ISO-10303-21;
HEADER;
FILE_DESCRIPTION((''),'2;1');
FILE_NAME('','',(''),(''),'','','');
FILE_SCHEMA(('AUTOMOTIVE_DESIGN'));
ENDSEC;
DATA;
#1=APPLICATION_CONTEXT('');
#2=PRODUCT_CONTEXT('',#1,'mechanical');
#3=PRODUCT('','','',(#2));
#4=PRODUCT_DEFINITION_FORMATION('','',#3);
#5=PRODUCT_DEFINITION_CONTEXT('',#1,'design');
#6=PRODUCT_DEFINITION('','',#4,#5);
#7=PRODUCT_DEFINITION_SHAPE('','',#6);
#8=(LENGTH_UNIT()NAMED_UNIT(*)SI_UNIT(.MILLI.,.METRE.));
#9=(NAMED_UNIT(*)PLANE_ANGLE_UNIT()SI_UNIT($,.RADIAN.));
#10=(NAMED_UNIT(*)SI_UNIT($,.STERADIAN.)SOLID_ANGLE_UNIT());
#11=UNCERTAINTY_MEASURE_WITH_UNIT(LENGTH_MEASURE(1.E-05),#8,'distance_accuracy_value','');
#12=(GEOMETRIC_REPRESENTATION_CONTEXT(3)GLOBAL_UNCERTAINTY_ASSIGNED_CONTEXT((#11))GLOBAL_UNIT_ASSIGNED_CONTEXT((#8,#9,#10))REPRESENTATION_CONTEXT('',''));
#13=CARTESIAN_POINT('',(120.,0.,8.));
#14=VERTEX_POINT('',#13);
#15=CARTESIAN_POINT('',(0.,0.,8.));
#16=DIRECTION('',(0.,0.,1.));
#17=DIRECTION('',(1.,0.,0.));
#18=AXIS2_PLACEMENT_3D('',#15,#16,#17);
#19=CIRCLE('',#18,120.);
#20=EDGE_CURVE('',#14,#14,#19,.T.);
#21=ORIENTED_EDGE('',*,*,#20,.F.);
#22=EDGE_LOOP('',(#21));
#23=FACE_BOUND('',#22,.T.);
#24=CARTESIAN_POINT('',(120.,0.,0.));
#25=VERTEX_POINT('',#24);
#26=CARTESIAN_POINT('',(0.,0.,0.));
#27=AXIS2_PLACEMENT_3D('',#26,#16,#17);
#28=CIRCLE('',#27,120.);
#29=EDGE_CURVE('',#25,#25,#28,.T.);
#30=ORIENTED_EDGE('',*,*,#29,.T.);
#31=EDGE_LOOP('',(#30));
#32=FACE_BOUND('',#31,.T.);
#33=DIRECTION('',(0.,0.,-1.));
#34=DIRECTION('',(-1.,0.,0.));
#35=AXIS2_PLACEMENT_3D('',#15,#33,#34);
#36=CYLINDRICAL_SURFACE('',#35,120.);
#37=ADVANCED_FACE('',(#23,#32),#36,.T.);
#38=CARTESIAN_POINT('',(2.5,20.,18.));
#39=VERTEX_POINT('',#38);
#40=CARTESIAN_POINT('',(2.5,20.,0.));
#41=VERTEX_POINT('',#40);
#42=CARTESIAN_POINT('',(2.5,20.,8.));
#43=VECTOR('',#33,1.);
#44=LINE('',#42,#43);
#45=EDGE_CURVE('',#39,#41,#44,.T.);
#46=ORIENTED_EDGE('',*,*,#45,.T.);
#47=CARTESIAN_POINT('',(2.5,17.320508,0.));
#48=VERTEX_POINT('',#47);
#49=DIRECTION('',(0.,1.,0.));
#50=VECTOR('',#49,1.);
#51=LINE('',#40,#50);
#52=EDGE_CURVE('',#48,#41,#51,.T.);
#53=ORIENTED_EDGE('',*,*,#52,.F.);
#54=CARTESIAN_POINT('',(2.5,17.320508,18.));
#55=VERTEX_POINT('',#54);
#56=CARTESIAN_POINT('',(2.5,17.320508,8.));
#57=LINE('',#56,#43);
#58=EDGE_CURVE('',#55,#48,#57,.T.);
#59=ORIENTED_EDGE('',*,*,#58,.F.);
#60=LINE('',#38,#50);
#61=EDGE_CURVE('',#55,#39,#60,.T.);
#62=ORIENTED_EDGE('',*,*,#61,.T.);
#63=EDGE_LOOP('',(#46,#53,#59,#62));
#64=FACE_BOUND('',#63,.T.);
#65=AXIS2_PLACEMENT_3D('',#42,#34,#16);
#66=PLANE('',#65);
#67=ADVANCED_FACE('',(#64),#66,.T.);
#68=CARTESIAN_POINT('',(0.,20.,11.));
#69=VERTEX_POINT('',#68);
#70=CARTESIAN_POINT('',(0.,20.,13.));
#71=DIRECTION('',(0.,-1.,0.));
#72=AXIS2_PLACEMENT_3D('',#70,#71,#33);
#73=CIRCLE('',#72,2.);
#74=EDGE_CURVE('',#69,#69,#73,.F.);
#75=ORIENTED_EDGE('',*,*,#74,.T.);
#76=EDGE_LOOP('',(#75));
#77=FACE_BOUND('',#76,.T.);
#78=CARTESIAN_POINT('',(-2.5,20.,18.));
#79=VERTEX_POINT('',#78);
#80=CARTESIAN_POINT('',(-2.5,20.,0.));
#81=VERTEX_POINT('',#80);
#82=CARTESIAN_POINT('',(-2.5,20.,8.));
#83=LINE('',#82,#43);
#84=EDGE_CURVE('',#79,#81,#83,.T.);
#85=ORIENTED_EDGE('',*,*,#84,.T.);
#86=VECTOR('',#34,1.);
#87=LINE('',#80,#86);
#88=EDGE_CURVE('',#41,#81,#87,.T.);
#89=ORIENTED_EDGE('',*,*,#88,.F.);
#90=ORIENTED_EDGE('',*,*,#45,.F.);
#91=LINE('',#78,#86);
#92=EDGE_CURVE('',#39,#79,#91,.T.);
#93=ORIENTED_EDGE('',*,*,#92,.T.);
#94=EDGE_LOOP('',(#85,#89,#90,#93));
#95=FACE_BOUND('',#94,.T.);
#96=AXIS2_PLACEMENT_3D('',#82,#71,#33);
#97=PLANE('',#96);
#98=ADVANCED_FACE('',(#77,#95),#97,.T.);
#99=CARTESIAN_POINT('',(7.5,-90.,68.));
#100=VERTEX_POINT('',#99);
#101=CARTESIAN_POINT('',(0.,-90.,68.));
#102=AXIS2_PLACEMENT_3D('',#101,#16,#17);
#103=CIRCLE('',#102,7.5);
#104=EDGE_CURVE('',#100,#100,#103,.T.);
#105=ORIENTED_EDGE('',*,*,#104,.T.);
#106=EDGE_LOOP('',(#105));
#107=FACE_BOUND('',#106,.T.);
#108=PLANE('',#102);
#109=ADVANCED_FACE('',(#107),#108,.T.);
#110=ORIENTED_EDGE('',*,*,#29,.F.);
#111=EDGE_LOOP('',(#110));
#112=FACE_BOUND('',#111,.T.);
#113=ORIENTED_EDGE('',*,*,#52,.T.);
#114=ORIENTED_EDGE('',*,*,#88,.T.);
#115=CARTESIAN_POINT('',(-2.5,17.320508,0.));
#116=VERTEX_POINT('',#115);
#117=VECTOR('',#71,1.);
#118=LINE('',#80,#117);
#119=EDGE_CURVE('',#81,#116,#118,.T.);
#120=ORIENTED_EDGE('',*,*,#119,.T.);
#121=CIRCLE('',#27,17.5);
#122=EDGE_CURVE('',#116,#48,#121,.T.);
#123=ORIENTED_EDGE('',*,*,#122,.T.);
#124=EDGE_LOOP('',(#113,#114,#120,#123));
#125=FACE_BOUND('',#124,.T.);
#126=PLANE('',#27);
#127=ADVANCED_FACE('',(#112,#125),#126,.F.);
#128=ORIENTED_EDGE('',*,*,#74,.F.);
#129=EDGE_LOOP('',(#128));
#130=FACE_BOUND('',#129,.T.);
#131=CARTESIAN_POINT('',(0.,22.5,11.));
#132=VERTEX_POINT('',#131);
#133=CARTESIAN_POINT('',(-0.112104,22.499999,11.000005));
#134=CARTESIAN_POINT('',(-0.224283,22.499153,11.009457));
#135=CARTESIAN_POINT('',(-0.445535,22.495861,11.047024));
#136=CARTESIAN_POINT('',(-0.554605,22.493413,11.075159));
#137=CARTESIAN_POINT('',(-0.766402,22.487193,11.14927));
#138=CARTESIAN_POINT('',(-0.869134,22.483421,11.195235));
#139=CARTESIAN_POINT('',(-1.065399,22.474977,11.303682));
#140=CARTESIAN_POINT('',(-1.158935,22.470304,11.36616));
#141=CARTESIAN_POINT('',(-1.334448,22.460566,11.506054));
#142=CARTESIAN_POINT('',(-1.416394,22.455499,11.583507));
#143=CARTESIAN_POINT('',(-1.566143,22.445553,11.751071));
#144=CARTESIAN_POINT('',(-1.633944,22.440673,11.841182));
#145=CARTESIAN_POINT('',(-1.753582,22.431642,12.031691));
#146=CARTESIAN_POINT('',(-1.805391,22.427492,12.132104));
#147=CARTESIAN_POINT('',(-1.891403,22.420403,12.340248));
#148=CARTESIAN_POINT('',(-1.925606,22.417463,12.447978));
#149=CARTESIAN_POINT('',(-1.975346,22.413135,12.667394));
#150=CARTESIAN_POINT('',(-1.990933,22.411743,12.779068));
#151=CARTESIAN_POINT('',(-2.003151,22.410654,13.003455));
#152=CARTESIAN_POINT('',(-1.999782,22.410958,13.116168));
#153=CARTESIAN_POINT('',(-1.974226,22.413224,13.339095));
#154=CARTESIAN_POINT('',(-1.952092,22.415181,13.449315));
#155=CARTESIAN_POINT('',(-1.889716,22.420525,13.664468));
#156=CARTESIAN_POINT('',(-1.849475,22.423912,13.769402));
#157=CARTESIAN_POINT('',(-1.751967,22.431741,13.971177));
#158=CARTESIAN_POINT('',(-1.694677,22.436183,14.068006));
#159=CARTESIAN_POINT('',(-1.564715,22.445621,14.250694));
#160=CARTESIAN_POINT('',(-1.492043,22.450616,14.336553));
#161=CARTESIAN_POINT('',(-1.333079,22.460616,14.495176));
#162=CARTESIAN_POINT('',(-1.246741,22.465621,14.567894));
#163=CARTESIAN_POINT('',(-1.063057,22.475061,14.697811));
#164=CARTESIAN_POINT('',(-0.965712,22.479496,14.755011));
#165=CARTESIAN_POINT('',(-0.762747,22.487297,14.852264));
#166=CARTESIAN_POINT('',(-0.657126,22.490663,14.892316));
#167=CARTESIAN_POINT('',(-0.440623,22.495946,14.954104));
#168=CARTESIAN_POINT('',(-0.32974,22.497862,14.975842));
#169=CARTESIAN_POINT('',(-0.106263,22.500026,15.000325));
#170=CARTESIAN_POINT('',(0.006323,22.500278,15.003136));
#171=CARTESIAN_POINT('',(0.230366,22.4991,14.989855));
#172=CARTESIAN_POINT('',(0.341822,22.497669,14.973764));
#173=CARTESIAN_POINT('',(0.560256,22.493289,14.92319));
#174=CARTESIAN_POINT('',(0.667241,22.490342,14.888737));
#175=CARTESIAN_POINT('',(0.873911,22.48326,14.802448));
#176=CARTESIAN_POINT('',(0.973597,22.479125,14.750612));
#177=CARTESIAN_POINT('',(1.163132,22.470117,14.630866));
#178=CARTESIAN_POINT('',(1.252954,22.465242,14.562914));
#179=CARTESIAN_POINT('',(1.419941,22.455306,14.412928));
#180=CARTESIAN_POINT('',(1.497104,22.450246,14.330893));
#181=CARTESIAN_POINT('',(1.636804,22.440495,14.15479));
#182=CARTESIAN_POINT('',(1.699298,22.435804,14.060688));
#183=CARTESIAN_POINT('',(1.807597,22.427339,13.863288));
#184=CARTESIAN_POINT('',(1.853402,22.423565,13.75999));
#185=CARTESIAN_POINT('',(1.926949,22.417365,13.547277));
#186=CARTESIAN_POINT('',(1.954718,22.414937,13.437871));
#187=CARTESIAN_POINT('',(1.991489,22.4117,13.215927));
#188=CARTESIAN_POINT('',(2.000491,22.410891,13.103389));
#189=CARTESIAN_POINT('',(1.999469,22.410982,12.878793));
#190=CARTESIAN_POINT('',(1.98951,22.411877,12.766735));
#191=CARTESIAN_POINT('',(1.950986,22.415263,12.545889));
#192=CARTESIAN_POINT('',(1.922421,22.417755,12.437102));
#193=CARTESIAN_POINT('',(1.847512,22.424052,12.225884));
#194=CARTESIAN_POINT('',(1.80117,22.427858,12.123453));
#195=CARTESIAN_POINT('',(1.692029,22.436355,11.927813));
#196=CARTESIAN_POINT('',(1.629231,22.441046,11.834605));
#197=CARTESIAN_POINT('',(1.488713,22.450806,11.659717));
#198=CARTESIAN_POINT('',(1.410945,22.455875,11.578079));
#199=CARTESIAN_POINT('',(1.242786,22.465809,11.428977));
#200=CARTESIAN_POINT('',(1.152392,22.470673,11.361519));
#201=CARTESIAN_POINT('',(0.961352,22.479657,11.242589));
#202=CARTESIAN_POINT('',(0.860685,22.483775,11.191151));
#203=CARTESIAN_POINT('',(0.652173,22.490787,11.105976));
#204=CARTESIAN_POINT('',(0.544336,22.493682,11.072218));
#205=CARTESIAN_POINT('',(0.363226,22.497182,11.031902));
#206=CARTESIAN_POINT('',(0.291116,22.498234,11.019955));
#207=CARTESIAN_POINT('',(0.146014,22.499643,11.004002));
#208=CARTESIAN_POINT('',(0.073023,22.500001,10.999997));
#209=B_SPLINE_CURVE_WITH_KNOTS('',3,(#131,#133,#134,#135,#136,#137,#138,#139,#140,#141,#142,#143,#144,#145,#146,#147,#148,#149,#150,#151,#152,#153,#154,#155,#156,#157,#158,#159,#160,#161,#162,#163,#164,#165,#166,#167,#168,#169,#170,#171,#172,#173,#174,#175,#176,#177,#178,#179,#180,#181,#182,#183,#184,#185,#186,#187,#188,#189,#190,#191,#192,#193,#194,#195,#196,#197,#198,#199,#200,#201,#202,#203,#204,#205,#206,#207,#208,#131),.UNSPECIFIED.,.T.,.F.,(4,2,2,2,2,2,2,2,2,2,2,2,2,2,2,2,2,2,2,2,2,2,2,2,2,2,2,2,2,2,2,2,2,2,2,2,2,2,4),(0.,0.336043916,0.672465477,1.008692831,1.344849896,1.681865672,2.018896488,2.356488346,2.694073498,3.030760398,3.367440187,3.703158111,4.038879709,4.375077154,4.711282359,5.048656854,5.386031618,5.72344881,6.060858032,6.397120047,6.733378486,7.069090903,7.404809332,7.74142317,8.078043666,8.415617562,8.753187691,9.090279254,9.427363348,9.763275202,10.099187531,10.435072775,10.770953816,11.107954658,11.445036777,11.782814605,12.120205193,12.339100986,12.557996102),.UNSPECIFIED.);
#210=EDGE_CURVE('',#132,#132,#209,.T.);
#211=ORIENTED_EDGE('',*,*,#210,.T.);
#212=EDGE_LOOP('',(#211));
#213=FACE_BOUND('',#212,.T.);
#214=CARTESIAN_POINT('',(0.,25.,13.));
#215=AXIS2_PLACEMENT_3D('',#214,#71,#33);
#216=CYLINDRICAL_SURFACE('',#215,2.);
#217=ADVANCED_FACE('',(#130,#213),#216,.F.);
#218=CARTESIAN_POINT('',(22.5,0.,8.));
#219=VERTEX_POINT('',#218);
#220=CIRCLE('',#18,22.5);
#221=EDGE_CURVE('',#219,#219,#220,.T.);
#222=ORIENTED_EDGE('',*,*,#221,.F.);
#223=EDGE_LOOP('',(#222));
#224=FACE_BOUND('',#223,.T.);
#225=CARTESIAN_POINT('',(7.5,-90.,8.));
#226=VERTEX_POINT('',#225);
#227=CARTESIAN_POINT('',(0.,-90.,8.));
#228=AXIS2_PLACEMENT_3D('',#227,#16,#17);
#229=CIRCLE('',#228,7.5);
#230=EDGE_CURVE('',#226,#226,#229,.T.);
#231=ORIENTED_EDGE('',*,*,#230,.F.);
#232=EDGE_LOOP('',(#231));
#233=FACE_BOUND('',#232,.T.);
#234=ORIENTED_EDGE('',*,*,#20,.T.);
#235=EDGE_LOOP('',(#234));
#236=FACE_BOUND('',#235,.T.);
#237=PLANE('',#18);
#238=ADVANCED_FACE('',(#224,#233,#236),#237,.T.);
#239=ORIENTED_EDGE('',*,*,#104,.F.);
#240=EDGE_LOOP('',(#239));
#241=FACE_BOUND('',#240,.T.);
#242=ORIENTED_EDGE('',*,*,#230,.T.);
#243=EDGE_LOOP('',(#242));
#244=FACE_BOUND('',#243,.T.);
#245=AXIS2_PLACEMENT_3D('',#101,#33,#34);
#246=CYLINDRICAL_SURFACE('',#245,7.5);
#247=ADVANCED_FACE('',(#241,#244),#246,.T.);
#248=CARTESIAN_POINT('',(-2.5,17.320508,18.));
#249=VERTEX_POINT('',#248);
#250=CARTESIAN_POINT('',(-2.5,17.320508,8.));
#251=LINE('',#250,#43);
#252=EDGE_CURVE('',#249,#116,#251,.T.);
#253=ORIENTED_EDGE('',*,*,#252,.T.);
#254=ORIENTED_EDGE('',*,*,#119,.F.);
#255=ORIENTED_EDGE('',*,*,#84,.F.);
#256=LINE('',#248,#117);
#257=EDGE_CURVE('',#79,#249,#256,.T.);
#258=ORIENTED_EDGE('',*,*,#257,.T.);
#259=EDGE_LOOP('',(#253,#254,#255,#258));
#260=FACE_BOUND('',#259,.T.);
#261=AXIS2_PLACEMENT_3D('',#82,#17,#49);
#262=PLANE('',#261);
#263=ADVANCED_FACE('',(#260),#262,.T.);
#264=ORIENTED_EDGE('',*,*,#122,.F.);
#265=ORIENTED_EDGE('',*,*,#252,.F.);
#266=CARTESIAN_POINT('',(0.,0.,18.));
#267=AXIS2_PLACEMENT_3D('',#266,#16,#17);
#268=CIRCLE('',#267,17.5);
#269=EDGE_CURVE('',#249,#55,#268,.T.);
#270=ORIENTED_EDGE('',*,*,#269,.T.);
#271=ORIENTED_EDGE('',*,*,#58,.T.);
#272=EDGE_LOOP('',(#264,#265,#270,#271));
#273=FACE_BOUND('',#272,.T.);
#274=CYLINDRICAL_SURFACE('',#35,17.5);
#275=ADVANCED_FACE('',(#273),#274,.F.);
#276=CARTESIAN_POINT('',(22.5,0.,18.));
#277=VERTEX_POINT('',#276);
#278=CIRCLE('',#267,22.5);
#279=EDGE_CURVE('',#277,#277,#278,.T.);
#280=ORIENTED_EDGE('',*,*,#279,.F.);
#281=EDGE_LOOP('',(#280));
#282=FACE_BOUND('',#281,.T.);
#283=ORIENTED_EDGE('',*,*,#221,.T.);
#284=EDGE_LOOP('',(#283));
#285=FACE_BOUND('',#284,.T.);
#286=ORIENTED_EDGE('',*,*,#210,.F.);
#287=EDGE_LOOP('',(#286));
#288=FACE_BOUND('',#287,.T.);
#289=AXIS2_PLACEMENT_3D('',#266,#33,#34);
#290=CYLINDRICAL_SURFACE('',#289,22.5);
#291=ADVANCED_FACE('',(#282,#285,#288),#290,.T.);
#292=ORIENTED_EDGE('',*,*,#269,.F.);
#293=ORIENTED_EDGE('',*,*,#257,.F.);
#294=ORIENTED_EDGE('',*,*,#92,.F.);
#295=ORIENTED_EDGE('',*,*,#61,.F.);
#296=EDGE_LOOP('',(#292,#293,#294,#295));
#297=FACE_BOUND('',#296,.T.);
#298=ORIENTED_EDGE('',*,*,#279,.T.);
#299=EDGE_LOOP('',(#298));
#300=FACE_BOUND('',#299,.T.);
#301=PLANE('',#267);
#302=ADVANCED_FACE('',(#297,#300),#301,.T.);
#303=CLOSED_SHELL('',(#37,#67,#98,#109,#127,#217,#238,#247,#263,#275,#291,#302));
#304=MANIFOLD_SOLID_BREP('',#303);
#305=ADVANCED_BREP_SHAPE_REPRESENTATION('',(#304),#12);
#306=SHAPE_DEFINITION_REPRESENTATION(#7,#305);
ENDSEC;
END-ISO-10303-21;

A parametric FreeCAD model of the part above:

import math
import FreeCAD as App
import Part
import Sketcher
Q = App.Units.Quantity

doc = App.newDocument("Part")
body = doc.addObject("PartDesign::Body", "Body")

# Sketch on XY plane
sketch1 = body.newObject("Sketcher::SketchObject", "Sketch")
sketch1.AttachmentSupport = (doc.getObject("XY_Plane"), [""])
sketch1.MapMode = "FlatFace"
sketch1.addGeometry(Part.Circle(App.Vector(0, 0, 0), App.Vector(0, 0, 1), 120), False)
sketch1.addGeometry(Part.LineSegment(App.Vector(-2.5, 17.3, 0), App.Vector(-2.5, 20, 0)), False)
sketch1.addGeometry(Part.LineSegment(App.Vector(-2.5, 20, 0), App.Vector(2.5, 20, 0)), False)
sketch1.addGeometry(Part.LineSegment(App.Vector(2.5, 20, 0), App.Vector(2.5, 17.3, 0)), False)
sketch1.addGeometry(Part.ArcOfCircle(Part.Circle(App.Vector(0, 0, 0), App.Vector(0, 0, 1), 17.5), math.radians(98), math.radians(442)), False)
sketch1.addConstraint(Sketcher.Constraint("Coincident", 1, 2, 2, 1))
sketch1.addConstraint(Sketcher.Constraint("Coincident", 2, 2, 3, 1))
sketch1.addConstraint(Sketcher.Constraint("Coincident", 3, 2, 4, 2))
sketch1.addConstraint(Sketcher.Constraint("Coincident", 4, 1, 1, 1))
sketch1.addConstraint(Sketcher.Constraint("Vertical", 1))
sketch1.addConstraint(Sketcher.Constraint("Horizontal", 2))
sketch1.addConstraint(Sketcher.Constraint("Vertical", 3))
sketch1.addConstraint(Sketcher.Constraint("Coincident", 0, 3, -1, 1))
sketch1.addConstraint(Sketcher.Constraint("Coincident", 4, 3, -1, 1))
sketch1.addConstraint(Sketcher.Constraint("Horizontal", 3, 2, 4, 1))
sketch1.addConstraint(Sketcher.Constraint("Diameter", 0, Q("240 mm")))
sketch1.addConstraint(Sketcher.Constraint("Radius", 4, Q("17.5 mm")))
sketch1.addConstraint(Sketcher.Constraint("DistanceX", 2, 1, 2, 2, Q("5 mm")))
sketch1.addConstraint(Sketcher.Constraint("DistanceY", -1, 1, 1, 2, Q("20 mm")))
pad1 = body.newObject("PartDesign::Pad", "Pad")
pad1.Profile = sketch1
pad1.Length = 8

# Sketch on XY plane
sketch2 = body.newObject("Sketcher::SketchObject", "Sketch001")
sketch2.AttachmentSupport = (doc.getObject("XY_Plane"), [""])
sketch2.MapMode = "FlatFace"
sketch2.AttachmentOffset = App.Placement(App.Vector(0, 0, 8), App.Rotation())
sketch2.addGeometry(Part.Circle(App.Vector(0, 0, 0), App.Vector(0, 0, 1), 22.5), False)
sketch2.addGeometry(Part.ArcOfCircle(Part.Circle(App.Vector(0, 0, 0), App.Vector(0, 0, 1), 17.5), math.radians(98), math.radians(442)), False)
sketch2.addGeometry(Part.LineSegment(App.Vector(-2.5, 17.3, 0), App.Vector(-2.5, 20, 0)), False)
sketch2.addGeometry(Part.LineSegment(App.Vector(-2.5, 20, 0), App.Vector(2.5, 20, 0)), False)
sketch2.addGeometry(Part.LineSegment(App.Vector(2.5, 20, 0), App.Vector(2.5, 17.3, 0)), False)
sketch2.addConstraint(Sketcher.Constraint("Coincident", 1, 1, 2, 1))
sketch2.addConstraint(Sketcher.Constraint("Coincident", 2, 2, 3, 1))
sketch2.addConstraint(Sketcher.Constraint("Coincident", 3, 2, 4, 1))
sketch2.addConstraint(Sketcher.Constraint("Coincident", 4, 2, 1, 2))
sketch2.addConstraint(Sketcher.Constraint("Vertical", 2))
sketch2.addConstraint(Sketcher.Constraint("Horizontal", 3))
sketch2.addConstraint(Sketcher.Constraint("Vertical", 4))
sketch2.addConstraint(Sketcher.Constraint("Coincident", 0, 3, -1, 1))
sketch2.addConstraint(Sketcher.Constraint("Coincident", 1, 3, -1, 1))
sketch2.addConstraint(Sketcher.Constraint("Horizontal", 1, 1, 4, 2))
sketch2.addConstraint(Sketcher.Constraint("Diameter", 0, Q("45 mm")))
sketch2.addConstraint(Sketcher.Constraint("Radius", 1, Q("17.5 mm")))
sketch2.addConstraint(Sketcher.Constraint("DistanceX", 3, 1, 3, 2, Q("5 mm")))
sketch2.addConstraint(Sketcher.Constraint("DistanceY", -1, 1, 2, 2, Q("20 mm")))
pad2 = body.newObject("PartDesign::Pad", "Pad001")
pad2.Profile = sketch2
pad2.Length = 10

# Sketch on XZ plane
sketch3 = body.newObject("Sketcher::SketchObject", "Sketch002")
sketch3.AttachmentSupport = (doc.getObject("XZ_Plane"), [""])
sketch3.MapMode = "FlatFace"
sketch3.addGeometry(Part.Circle(App.Vector(0, 13, 0), App.Vector(0, 0, 1), 2), False)
sketch3.addConstraint(Sketcher.Constraint("PointOnObject", 0, 3, -2))
sketch3.addConstraint(Sketcher.Constraint("Diameter", 0, Q("4 mm")))
sketch3.addConstraint(Sketcher.Constraint("DistanceY", -1, 1, 0, 3, Q("13 mm")))
pocket1 = body.newObject("PartDesign::Pocket", "Pocket")
pocket1.Profile = sketch3
pocket1.Length = 25

# Sketch on XY plane
sketch4 = body.newObject("Sketcher::SketchObject", "Sketch003")
sketch4.AttachmentSupport = (doc.getObject("XY_Plane"), [""])
sketch4.MapMode = "FlatFace"
sketch4.AttachmentOffset = App.Placement(App.Vector(0, 0, 8), App.Rotation())
sketch4.addGeometry(Part.Circle(App.Vector(0, -90, 0), App.Vector(0, 0, 1), 8), False)
sketch4.addConstraint(Sketcher.Constraint("PointOnObject", 0, 3, -2))
sketch4.addConstraint(Sketcher.Constraint("Diameter", 0, Q("15 mm")))
sketch4.addConstraint(Sketcher.Constraint("DistanceY", 0, 3, -1, 1, Q("90 mm")))
pad3 = body.newObject("PartDesign::Pad", "Pad002")
pad3.Profile = sketch4
pad3.Length = 60

doc.recompute()
